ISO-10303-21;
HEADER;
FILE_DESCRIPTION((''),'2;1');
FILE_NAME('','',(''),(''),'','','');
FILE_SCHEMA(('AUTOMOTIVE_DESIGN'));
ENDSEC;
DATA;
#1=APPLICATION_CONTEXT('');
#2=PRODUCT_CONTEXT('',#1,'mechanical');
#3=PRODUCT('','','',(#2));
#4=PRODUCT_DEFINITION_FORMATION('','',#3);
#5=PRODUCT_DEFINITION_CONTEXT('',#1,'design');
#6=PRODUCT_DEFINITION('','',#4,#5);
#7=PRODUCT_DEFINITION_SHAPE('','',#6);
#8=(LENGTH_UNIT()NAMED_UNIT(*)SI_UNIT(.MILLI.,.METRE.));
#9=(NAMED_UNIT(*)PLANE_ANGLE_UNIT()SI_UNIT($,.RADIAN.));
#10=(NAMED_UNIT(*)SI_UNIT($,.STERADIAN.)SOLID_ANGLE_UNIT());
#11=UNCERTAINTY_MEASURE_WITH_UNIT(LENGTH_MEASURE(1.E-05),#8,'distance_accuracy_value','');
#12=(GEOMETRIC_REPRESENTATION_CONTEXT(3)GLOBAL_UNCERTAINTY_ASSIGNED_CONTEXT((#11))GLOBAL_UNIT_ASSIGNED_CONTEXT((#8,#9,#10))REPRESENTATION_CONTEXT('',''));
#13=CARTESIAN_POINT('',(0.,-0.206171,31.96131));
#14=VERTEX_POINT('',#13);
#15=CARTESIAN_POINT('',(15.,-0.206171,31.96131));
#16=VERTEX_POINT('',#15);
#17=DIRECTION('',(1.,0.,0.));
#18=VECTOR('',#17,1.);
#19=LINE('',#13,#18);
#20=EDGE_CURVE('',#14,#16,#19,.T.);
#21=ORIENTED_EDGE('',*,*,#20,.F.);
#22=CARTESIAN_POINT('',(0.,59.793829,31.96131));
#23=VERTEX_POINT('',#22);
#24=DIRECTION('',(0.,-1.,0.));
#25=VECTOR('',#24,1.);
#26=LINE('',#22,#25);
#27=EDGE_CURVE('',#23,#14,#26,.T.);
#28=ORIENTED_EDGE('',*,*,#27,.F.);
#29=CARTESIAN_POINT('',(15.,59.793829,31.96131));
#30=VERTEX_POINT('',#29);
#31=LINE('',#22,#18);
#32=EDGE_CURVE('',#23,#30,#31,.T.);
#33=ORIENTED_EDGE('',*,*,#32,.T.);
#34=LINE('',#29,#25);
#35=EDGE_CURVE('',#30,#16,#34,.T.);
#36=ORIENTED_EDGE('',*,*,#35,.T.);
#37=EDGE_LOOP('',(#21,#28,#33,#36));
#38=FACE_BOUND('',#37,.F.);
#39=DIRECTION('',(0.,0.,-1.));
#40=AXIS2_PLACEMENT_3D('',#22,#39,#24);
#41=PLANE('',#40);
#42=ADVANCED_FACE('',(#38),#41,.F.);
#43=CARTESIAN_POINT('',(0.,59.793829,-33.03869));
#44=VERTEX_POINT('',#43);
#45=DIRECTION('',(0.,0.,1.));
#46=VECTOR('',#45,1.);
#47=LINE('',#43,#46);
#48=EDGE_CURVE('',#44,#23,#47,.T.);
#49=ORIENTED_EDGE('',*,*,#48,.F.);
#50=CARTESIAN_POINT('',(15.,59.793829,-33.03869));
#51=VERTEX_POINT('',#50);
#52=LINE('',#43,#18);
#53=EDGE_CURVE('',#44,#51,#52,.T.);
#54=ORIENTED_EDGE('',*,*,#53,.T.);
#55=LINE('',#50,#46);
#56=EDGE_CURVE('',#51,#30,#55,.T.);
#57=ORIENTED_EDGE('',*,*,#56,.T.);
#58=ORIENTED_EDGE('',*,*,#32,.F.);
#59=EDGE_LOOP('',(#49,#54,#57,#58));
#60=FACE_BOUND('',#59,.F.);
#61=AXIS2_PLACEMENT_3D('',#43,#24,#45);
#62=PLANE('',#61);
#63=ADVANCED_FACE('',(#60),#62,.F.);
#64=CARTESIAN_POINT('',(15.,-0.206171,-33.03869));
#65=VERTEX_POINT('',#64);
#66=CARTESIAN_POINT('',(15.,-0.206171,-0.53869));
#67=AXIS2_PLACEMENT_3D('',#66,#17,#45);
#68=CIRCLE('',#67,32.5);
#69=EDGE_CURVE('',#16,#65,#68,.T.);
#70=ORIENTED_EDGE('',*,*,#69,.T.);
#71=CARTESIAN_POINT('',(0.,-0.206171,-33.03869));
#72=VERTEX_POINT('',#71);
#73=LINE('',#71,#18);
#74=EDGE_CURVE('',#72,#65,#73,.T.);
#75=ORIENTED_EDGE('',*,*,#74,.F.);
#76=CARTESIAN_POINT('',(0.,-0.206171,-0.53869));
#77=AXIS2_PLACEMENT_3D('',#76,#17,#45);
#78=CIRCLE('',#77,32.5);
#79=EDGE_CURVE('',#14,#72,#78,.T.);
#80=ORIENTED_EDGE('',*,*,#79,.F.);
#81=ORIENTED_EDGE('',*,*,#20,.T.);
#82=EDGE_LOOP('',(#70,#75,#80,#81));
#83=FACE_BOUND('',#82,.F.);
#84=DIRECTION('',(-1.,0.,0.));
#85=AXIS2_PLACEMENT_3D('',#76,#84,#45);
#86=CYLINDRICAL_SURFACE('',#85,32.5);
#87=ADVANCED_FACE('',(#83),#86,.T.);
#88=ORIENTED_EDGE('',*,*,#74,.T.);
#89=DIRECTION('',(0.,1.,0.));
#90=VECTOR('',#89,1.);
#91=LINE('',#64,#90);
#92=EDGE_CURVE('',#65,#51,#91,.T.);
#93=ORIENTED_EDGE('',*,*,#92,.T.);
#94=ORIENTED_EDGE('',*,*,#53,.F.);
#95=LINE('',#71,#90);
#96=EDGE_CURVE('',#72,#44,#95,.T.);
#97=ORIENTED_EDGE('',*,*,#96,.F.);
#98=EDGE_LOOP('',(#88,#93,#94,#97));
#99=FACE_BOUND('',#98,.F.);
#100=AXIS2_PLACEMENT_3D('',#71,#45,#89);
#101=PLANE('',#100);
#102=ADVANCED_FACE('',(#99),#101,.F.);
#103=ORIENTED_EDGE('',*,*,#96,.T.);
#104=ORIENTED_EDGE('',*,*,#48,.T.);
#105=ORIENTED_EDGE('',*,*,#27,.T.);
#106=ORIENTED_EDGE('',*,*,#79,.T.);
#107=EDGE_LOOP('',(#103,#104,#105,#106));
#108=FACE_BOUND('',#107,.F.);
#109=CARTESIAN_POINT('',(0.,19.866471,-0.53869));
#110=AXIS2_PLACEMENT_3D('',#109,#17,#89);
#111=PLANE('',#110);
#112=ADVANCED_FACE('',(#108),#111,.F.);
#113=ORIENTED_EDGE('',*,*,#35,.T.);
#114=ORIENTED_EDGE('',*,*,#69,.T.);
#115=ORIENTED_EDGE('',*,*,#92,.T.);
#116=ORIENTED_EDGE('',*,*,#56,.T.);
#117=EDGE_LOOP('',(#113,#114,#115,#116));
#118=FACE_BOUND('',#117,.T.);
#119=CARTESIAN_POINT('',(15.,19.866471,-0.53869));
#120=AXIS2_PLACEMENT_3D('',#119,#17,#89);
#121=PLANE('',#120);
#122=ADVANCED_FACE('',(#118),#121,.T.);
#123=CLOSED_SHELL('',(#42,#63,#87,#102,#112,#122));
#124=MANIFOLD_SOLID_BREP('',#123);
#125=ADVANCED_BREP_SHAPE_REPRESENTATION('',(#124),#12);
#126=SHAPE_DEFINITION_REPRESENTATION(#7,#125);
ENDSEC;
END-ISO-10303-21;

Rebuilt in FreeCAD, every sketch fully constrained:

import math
import FreeCAD as App
import Part
import Sketcher

V = App.Vector
Q = App.Units.Quantity

doc = App.newDocument("Part")
body = doc.addObject("PartDesign::Body", "Body")

# Sketch on YZ plane
sketch1 = body.newObject("Sketcher::SketchObject", "Sketch")
sketch1.AttachmentSupport = (doc.getObject("YZ_Plane"), [""])
sketch1.MapMode = "FlatFace"
sketch1.addGeometry(Part.LineSegment(V(60, 32, 0), V(0, 32, 0)), False)
sketch1.addGeometry(Part.ArcOfCircle(Part.Circle(V(0, -1, 0), V(0, 0, 1), 32), math.radians(90), math.radians(270)), False)
sketch1.addGeometry(Part.LineSegment(V(0, -33, 0), V(60, -33, 0)), False)
sketch1.addGeometry(Part.LineSegment(V(60, -33, 0), V(60, 32, 0)), False)
sketch1.addConstraint(Sketcher.Constraint("Tangent", 0, 2, 1, 1))
sketch1.addConstraint(Sketcher.Constraint("Tangent", 1, 2, 2, 1))
sketch1.addConstraint(Sketcher.Constraint("Coincident", 2, 2, 3, 1))
sketch1.addConstraint(Sketcher.Constraint("Coincident", 3, 2, 0, 1))
sketch1.addConstraint(Sketcher.Constraint("Horizontal", 0))
sketch1.addConstraint(Sketcher.Constraint("Horizontal", 2))
sketch1.addConstraint(Sketcher.Constraint("Vertical", 3))
sketch1.addConstraint(Sketcher.Constraint("Radius", 1, Q("32.5 mm")))
sketch1.addConstraint(Sketcher.Constraint("DistanceX", 0, 2, 0, 1, Q("60 mm")))
sketch1.addConstraint(Sketcher.Constraint("DistanceX", 1, 3, -1, 1, Q("0.206171 mm")))
sketch1.addConstraint(Sketcher.Constraint("DistanceY", 1, 3, -1, 1, Q("0.53869 mm")))
pad1 = body.newObject("PartDesign::Pad", "Pad")
pad1.Profile = sketch1
pad1.Length = 15

doc.recompute()
